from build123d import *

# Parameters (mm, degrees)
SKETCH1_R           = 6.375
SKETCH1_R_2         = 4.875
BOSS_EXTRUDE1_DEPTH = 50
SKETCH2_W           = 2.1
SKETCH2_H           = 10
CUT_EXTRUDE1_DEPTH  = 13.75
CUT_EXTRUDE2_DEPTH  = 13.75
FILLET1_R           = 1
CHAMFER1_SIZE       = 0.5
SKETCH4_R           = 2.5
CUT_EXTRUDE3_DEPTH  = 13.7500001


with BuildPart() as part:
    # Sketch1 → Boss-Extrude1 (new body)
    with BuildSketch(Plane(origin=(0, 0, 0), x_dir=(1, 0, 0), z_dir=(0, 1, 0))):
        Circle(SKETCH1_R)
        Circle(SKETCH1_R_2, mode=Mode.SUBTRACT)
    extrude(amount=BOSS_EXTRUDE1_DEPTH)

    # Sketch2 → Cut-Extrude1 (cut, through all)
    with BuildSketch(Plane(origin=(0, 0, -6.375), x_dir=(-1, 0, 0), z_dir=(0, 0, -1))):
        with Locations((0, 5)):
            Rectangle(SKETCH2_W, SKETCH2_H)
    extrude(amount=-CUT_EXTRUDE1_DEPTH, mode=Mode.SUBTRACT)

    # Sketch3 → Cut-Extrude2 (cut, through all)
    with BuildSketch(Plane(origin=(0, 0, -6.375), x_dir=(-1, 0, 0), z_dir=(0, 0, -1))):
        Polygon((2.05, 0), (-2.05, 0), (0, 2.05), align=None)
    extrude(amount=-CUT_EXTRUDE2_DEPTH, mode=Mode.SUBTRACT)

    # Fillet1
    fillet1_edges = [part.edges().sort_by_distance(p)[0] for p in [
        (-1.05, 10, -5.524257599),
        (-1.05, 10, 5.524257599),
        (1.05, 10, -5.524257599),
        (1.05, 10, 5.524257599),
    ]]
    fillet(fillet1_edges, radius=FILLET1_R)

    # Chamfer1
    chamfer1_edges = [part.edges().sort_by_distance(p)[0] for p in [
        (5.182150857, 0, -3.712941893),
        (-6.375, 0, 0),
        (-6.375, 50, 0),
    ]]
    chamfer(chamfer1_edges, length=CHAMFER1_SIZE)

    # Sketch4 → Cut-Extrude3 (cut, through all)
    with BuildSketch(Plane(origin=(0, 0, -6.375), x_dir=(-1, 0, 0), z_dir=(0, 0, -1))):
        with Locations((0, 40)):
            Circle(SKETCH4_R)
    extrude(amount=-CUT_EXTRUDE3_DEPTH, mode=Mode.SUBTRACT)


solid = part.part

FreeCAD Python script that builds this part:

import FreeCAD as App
import Part
import Sketcher
Q = App.Units.Quantity


def edges_at(feature, points):
    """Names of the edges that pass closest to the given points."""
    edges = feature.Shape.Edges
    near = lambda p: min(range(len(edges)), key=lambda i: edges[i].distToShape(Part.Vertex(*p))[0])
    return sorted({f"Edge{near(p) + 1}" for p in points})

doc = App.newDocument("Part")
body = doc.addObject("PartDesign::Body", "Body")

# Sketch on XZ plane
sketch1 = body.newObject("Sketcher::SketchObject", "Sketch")
sketch1.AttachmentSupport = (doc.getObject("XZ_Plane"), [""])
sketch1.MapMode = "FlatFace"
sketch1.addGeometry([
    Part.Circle(App.Vector(0, 0, 0), App.Vector(0, 0, 1), 6.4),
    Part.Circle(App.Vector(0, 0, 0), App.Vector(0, 0, 1), 4.9),
], False)
sketch1.addConstraint([
    Sketcher.Constraint("Coincident", 0, 3, -1, 1),
    Sketcher.Constraint("Coincident", 1, 3, -1, 1),
    Sketcher.Constraint("Diameter", 0, Q("12.75 mm")),
    Sketcher.Constraint("Diameter", 1, Q("9.75 mm")),
])
pad1 = body.newObject("PartDesign::Pad", "Pad")
pad1.Profile = sketch1
pad1.Length = 50
pad1.Reversed = True

# Sketch on XY plane
sketch2 = body.newObject("Sketcher::SketchObject", "Sketch001")
sketch2.AttachmentSupport = (doc.getObject("XY_Plane"), [""])
sketch2.MapMode = "FlatFace"
sketch2.AttachmentOffset = App.Placement(App.Vector(0, 0, -6.375), App.Rotation())
sketch2.addGeometry([
    Part.LineSegment(App.Vector(1.1, 10, 0), App.Vector(1.1, 0, 0)),
    Part.LineSegment(App.Vector(1.1, 0, 0), App.Vector(-1.1, 0, 0)),
    Part.LineSegment(App.Vector(-1.1, 0, 0), App.Vector(-1.1, 10, 0)),
    Part.LineSegment(App.Vector(-1.1, 10, 0), App.Vector(1.1, 10, 0)),
], False)
sketch2.addConstraint([
    Sketcher.Constraint("Coincident", 0, 2, 1, 1),
    Sketcher.Constraint("Coincident", 1, 2, 2, 1),
    Sketcher.Constraint("Coincident", 2, 2, 3, 1),
    Sketcher.Constraint("Coincident", 3, 2, 0, 1),
    Sketcher.Constraint("Vertical", 0),
    Sketcher.Constraint("Horizontal", 1),
    Sketcher.Constraint("Vertical", 2),
    Sketcher.Constraint("Horizontal", 3),
    Sketcher.Constraint("Symmetric", 0, 2, 1, 2, -1, 1),
    Sketcher.Constraint("DistanceY", 0, 2, 0, 1, Q("10 mm")),
    Sketcher.Constraint("DistanceX", 1, 2, 1, 1, Q("2.1 mm")),
])
pocket1 = body.newObject("PartDesign::Pocket", "Pocket")
pocket1.Profile = sketch2
pocket1.Type = "ThroughAll"
pocket1.Reversed = True

# Sketch on XY plane
sketch3 = body.newObject("Sketcher::SketchObject", "Sketch002")
sketch3.AttachmentSupport = (doc.getObject("XY_Plane"), [""])
sketch3.MapMode = "FlatFace"
sketch3.AttachmentOffset = App.Placement(App.Vector(0, 0, -6.375), App.Rotation())
sketch3.addGeometry([
    Part.LineSegment(App.Vector(2, 0, 0), App.Vector(-2, 0, 0)),
    Part.LineSegment(App.Vector(-2, 0, 0), App.Vector(0, 2, 0)),
    Part.LineSegment(App.Vector(0, 2, 0), App.Vector(2, 0, 0)),
], False)
sketch3.addConstraint([
    Sketcher.Constraint("Coincident", 0, 2, 1, 1),
    Sketcher.Constraint("Coincident", 1, 2, 2, 1),
    Sketcher.Constraint("Coincident", 2, 2, 0, 1),
    Sketcher.Constraint("Horizontal", 0),
    Sketcher.Constraint("Symmetric", 0, 2, 2, 2, -1, 1),
    Sketcher.Constraint("PointOnObject", 1, 2, -2),
    Sketcher.Constraint("Perpendicular", 1, 2),
    Sketcher.Constraint("DistanceX", 0, 2, 0, 1, Q("4.1 mm")),
])
pocket2 = body.newObject("PartDesign::Pocket", "Pocket001")
pocket2.Profile = sketch3
pocket2.Type = "ThroughAll"
pocket2.Reversed = True
doc.recompute()

fillet = body.newObject("PartDesign::Fillet", "Fillet")
fillet.Base = (pocket2, edges_at(pocket2, [
    (-1.05, 10, -5.524),
    (-1.05, 10, 5.524),
    (1.05, 10, -5.524),
    (1.05, 10, 5.524),
]))
fillet.Radius = 1
doc.recompute()

chamfer = body.newObject("PartDesign::Chamfer", "Chamfer")
chamfer.Base = (fillet, edges_at(fillet, [(5.182, 0, -3.713), (-6.375, 0, 0), (-6.375, 50, 0)]))
chamfer.Size = 0.5

# Sketch on XY plane
sketch4 = body.newObject("Sketcher::SketchObject", "Sketch003")
sketch4.AttachmentSupport = (doc.getObject("XY_Plane"), [""])
sketch4.MapMode = "FlatFace"
sketch4.AttachmentOffset = App.Placement(App.Vector(0, 0, -6.375), App.Rotation())
sketch4.addGeometry(Part.Circle(App.Vector(0, 40, 0), App.Vector(0, 0, 1), 2.5), False)
sketch4.addConstraint([
    Sketcher.Constraint("PointOnObject", 0, 3, -2),
    Sketcher.Constraint("Diameter", 0, Q("5 mm")),
    Sketcher.Constraint("DistanceY", -1, 1, 0, 3, Q("40 mm")),
])
pocket3 = body.newObject("PartDesign::Pocket", "Pocket002")
pocket3.Profile = sketch4
pocket3.Type = "ThroughAll"
pocket3.Reversed = True

doc.recompute()
